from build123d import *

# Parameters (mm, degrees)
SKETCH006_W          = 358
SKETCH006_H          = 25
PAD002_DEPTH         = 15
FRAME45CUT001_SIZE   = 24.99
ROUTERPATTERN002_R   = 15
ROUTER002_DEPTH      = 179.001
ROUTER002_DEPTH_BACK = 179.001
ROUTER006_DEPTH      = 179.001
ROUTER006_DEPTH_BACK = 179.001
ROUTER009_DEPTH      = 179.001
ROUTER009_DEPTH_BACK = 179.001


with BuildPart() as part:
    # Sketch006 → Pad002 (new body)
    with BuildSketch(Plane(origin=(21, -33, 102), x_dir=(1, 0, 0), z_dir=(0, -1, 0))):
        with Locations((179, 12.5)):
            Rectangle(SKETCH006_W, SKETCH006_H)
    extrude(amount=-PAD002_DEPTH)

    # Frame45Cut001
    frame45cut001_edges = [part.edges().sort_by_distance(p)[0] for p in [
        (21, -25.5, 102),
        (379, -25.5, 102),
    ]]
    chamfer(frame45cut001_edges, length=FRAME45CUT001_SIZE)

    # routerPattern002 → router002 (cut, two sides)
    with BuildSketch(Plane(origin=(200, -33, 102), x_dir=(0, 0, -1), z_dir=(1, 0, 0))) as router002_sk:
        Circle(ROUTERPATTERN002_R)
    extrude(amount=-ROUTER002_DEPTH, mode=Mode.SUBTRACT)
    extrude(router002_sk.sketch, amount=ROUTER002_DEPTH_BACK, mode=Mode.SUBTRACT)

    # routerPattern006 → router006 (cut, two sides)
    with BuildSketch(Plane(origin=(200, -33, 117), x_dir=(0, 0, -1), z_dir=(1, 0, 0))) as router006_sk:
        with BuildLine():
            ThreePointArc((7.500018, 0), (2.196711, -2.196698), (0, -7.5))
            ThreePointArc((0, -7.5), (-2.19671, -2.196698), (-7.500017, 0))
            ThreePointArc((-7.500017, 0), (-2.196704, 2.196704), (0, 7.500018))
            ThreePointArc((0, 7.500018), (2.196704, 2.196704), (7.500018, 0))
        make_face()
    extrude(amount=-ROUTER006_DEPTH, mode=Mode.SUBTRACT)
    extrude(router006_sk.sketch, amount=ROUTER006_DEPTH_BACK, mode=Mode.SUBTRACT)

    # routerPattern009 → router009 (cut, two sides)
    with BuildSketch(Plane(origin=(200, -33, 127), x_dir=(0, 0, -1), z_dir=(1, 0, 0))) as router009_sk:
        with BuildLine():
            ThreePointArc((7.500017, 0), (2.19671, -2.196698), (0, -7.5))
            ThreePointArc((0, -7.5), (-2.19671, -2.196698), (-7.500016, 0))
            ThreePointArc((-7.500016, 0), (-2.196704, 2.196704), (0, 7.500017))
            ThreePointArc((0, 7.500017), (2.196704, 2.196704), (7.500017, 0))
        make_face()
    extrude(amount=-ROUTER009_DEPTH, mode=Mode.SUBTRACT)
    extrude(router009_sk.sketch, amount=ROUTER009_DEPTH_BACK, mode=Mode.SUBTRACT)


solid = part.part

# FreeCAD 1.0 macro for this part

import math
import FreeCAD as App
import Part
import Sketcher
from FreeCAD import Vector


def edges_at(feature, points):
    """Names of the edges that pass closest to the given points."""
    edges = feature.Shape.Edges
    near = lambda p: min(range(len(edges)), key=lambda i: edges[i].distToShape(Part.Vertex(*p))[0])
    return sorted({f"Edge{near(p) + 1}" for p in points})

doc = App.newDocument("Part")
params = doc.addObject("Spreadsheet::Sheet", "Params")
for row, (alias, value) in enumerate([
    ("sketch1_width", "358 mm"),
    ("sketch1_height", "25 mm"),
    ("pad1_length", "15 mm"),
    ("chamfer_size", "24.99 mm"),
    ("sketch2_diameter", "30 mm"),
], start=1):
    params.set(f"A{row}", alias)
    params.set(f"B{row}", "=" + value)
    params.setAlias(f"B{row}", alias)

body = doc.addObject("PartDesign::Body", "Body")

sketch1 = body.newObject("Sketcher::SketchObject", "Sketch")
sketch1.AttachmentSupport = (doc.getObject("XZ_Plane"), [""])
sketch1.MapMode = "FlatFace"
sketch1.AttachmentOffset = App.Placement(Vector(0, 0, 33), App.Rotation())
sketch1.addGeometry(Part.LineSegment(Vector(21, 127, 0), Vector(21, 102, 0)), False)
sketch1.addGeometry(Part.LineSegment(Vector(21, 102, 0), Vector(379, 102, 0)), False)
sketch1.addGeometry(Part.LineSegment(Vector(379, 102, 0), Vector(379, 127, 0)), False)
sketch1.addGeometry(Part.LineSegment(Vector(379, 127, 0), Vector(21, 127, 0)), False)
sketch1.addConstraint(Sketcher.Constraint("Coincident", 0, 2, 1, 1))
sketch1.addConstraint(Sketcher.Constraint("Coincident", 1, 2, 2, 1))
sketch1.addConstraint(Sketcher.Constraint("Coincident", 2, 2, 3, 1))
sketch1.addConstraint(Sketcher.Constraint("Coincident", 3, 2, 0, 1))
sketch1.addConstraint(Sketcher.Constraint("Vertical", 0))
sketch1.addConstraint(Sketcher.Constraint("Horizontal", 1))
sketch1.addConstraint(Sketcher.Constraint("Vertical", 2))
sketch1.addConstraint(Sketcher.Constraint("Horizontal", 3))
sketch1.addConstraint(Sketcher.Constraint("DistanceX", 1, 1, 1, 2, 358.0))
sketch1.addConstraint(Sketcher.Constraint("DistanceY", 0, 2, 0, 1, 25.0))
sketch1.addConstraint(Sketcher.Constraint("DistanceX", -1, 1, 0, 2, 21.0))
sketch1.addConstraint(Sketcher.Constraint("DistanceY", -1, 1, 0, 2, 102.0))
sketch1.setExpression("Constraints[8]", "Params.sketch1_width")
sketch1.setExpression("Constraints[9]", "Params.sketch1_height")
pad1 = body.newObject("PartDesign::Pad", "Pad")
pad1.Profile = sketch1
pad1.setExpression("Length", "Params.pad1_length")
pad1.Reversed = True
doc.recompute()

chamfer = body.newObject("PartDesign::Chamfer", "Chamfer")
chamfer.Base = (pad1, edges_at(pad1, [(21, -25.5, 102), (379, -25.5, 102)]))
chamfer.setExpression("Size", "Params.chamfer_size")

sketch2 = body.newObject("Sketcher::SketchObject", "Sketch001")
sketch2.AttachmentSupport = (doc.getObject("YZ_Plane"), [""])
sketch2.MapMode = "FlatFace"
sketch2.AttachmentOffset = App.Placement(Vector(0, 0, 200), App.Rotation())
sketch2.addGeometry(Part.Circle(Vector(-33, 102, 0), Vector(0, 0, 1), 15), False)
sketch2.addConstraint(Sketcher.Constraint("Diameter", 0, 30.0))
sketch2.addConstraint(Sketcher.Constraint("DistanceX", 0, 3, -1, 1, 33.0))
sketch2.addConstraint(Sketcher.Constraint("DistanceY", -1, 1, 0, 3, 102.0))
sketch2.setExpression("Constraints[0]", "Params.sketch2_diameter")
pocket1 = body.newObject("PartDesign::Pocket", "Pocket")
pocket1.Profile = sketch2
pocket1.Type = "ThroughAll"
pocket1.Midplane = True

sketch3 = body.newObject("Sketcher::SketchObject", "Sketch002")
sketch3.AttachmentSupport = (doc.getObject("YZ_Plane"), [""])
sketch3.MapMode = "FlatFace"
sketch3.AttachmentOffset = App.Placement(Vector(0, 0, 200), App.Rotation())
sketch3.addGeometry(Part.ArcOfCircle(Part.Circle(Vector(-40.500018, 109.499982, 0), Vector(0, 0, 1), 7.500018), math.radians(0.000002), math.radians(89.99986)), False)
sketch3.addGeometry(Part.ArcOfCircle(Part.Circle(Vector(-25.499983, 109.499983, 0), Vector(0, 0, 1), 7.500017), math.radians(89.999989), math.radians(180.000011)), False)
sketch3.addGeometry(Part.ArcOfCircle(Part.Circle(Vector(-25.499983, 124.500017, 0), Vector(0, 0, 1), 7.500017), math.radians(179.999997), math.radians(270.000011)), False)
sketch3.addGeometry(Part.ArcOfCircle(Part.Circle(Vector(-40.500017, 124.500017, 0), Vector(0, 0, 1), 7.500017), math.radians(-89.999873), math.radians(0.000003)), False)
sketch3.addConstraint(Sketcher.Constraint("Tangent", 0, 1, 1, 2))
sketch3.addConstraint(Sketcher.Constraint("Tangent", 1, 1, 2, 2))
sketch3.addConstraint(Sketcher.Constraint("Tangent", 2, 1, 3, 2))
sketch3.addConstraint(Sketcher.Constraint("Coincident", 3, 1, 0, 2))
sketch3.addConstraint(Sketcher.Constraint("Equal", 0, 1))
sketch3.addConstraint(Sketcher.Constraint("Equal", 1, 2))
sketch3.addConstraint(Sketcher.Constraint("Equal", 2, 3))
sketch3.addConstraint(Sketcher.Constraint("Horizontal", 0, 3, 1, 3))
sketch3.addConstraint(Sketcher.Constraint("Vertical", 1, 3, 2, 3))
sketch3.addConstraint(Sketcher.Constraint("DistanceX", 0, 1, -1, 1, 33.0))
sketch3.addConstraint(Sketcher.Constraint("DistanceY", -1, 1, 1, 1, 117.0))
sketch3.addConstraint(Sketcher.Constraint("DistanceX", 3, 1, -1, 1, 40.5))
sketch3.addConstraint(Sketcher.Constraint("Radius", 0, 7.500018))
pocket2 = body.newObject("PartDesign::Pocket", "Pocket001")
pocket2.Profile = sketch3
pocket2.Type = "ThroughAll"
pocket2.Midplane = True

sketch4 = body.newObject("Sketcher::SketchObject", "Sketch003")
sketch4.AttachmentSupport = (doc.getObject("YZ_Plane"), [""])
sketch4.MapMode = "FlatFace"
sketch4.AttachmentOffset = App.Placement(Vector(0, 0, 200), App.Rotation())
sketch4.addGeometry(Part.ArcOfCircle(Part.Circle(Vector(-40.500017, 119.499983, 0), Vector(0, 0, 1), 7.500017), math.radians(-0.000003), math.radians(89.999873)), False)
sketch4.addGeometry(Part.ArcOfCircle(Part.Circle(Vector(-25.499983, 119.499983, 0), Vector(0, 0, 1), 7.500017), math.radians(89.999997), math.radians(180.000003)), False)
sketch4.addGeometry(Part.ArcOfCircle(Part.Circle(Vector(-25.499983, 134.500017, 0), Vector(0, 0, 1), 7.500017), math.radians(-179.999996), math.radians(-89.999997)), False)
sketch4.addGeometry(Part.ArcOfCircle(Part.Circle(Vector(-40.500017, 134.500017, 0), Vector(0, 0, 1), 7.500017), math.radians(-89.999873), math.radians(-0.000004)), False)
sketch4.addConstraint(Sketcher.Constraint("Tangent", 0, 1, 1, 2))
sketch4.addConstraint(Sketcher.Constraint("Tangent", 1, 1, 2, 2))
sketch4.addConstraint(Sketcher.Constraint("Tangent", 2, 1, 3, 2))
sketch4.addConstraint(Sketcher.Constraint("Coincident", 3, 1, 0, 2))
sketch4.addConstraint(Sketcher.Constraint("Equal", 0, 1))
sketch4.addConstraint(Sketcher.Constraint("Equal", 1, 2))
sketch4.addConstraint(Sketcher.Constraint("Equal", 2, 3))
sketch4.addConstraint(Sketcher.Constraint("Horizontal", 0, 3, 1, 3))
sketch4.addConstraint(Sketcher.Constraint("Vertical", 1, 3, 2, 3))
sketch4.addConstraint(Sketcher.Constraint("DistanceX", 0, 1, -1, 1, 33.0))
sketch4.addConstraint(Sketcher.Constraint("DistanceY", -1, 1, 1, 1, 127.0))
sketch4.addConstraint(Sketcher.Constraint("DistanceX", 3, 1, -1, 1, 40.5))
sketch4.addConstraint(Sketcher.Constraint("Radius", 0, 7.500017))
pocket3 = body.newObject("PartDesign::Pocket", "Pocket002")
pocket3.Profile = sketch4
pocket3.Type = "ThroughAll"
pocket3.Midplane = True

doc.recompute()
